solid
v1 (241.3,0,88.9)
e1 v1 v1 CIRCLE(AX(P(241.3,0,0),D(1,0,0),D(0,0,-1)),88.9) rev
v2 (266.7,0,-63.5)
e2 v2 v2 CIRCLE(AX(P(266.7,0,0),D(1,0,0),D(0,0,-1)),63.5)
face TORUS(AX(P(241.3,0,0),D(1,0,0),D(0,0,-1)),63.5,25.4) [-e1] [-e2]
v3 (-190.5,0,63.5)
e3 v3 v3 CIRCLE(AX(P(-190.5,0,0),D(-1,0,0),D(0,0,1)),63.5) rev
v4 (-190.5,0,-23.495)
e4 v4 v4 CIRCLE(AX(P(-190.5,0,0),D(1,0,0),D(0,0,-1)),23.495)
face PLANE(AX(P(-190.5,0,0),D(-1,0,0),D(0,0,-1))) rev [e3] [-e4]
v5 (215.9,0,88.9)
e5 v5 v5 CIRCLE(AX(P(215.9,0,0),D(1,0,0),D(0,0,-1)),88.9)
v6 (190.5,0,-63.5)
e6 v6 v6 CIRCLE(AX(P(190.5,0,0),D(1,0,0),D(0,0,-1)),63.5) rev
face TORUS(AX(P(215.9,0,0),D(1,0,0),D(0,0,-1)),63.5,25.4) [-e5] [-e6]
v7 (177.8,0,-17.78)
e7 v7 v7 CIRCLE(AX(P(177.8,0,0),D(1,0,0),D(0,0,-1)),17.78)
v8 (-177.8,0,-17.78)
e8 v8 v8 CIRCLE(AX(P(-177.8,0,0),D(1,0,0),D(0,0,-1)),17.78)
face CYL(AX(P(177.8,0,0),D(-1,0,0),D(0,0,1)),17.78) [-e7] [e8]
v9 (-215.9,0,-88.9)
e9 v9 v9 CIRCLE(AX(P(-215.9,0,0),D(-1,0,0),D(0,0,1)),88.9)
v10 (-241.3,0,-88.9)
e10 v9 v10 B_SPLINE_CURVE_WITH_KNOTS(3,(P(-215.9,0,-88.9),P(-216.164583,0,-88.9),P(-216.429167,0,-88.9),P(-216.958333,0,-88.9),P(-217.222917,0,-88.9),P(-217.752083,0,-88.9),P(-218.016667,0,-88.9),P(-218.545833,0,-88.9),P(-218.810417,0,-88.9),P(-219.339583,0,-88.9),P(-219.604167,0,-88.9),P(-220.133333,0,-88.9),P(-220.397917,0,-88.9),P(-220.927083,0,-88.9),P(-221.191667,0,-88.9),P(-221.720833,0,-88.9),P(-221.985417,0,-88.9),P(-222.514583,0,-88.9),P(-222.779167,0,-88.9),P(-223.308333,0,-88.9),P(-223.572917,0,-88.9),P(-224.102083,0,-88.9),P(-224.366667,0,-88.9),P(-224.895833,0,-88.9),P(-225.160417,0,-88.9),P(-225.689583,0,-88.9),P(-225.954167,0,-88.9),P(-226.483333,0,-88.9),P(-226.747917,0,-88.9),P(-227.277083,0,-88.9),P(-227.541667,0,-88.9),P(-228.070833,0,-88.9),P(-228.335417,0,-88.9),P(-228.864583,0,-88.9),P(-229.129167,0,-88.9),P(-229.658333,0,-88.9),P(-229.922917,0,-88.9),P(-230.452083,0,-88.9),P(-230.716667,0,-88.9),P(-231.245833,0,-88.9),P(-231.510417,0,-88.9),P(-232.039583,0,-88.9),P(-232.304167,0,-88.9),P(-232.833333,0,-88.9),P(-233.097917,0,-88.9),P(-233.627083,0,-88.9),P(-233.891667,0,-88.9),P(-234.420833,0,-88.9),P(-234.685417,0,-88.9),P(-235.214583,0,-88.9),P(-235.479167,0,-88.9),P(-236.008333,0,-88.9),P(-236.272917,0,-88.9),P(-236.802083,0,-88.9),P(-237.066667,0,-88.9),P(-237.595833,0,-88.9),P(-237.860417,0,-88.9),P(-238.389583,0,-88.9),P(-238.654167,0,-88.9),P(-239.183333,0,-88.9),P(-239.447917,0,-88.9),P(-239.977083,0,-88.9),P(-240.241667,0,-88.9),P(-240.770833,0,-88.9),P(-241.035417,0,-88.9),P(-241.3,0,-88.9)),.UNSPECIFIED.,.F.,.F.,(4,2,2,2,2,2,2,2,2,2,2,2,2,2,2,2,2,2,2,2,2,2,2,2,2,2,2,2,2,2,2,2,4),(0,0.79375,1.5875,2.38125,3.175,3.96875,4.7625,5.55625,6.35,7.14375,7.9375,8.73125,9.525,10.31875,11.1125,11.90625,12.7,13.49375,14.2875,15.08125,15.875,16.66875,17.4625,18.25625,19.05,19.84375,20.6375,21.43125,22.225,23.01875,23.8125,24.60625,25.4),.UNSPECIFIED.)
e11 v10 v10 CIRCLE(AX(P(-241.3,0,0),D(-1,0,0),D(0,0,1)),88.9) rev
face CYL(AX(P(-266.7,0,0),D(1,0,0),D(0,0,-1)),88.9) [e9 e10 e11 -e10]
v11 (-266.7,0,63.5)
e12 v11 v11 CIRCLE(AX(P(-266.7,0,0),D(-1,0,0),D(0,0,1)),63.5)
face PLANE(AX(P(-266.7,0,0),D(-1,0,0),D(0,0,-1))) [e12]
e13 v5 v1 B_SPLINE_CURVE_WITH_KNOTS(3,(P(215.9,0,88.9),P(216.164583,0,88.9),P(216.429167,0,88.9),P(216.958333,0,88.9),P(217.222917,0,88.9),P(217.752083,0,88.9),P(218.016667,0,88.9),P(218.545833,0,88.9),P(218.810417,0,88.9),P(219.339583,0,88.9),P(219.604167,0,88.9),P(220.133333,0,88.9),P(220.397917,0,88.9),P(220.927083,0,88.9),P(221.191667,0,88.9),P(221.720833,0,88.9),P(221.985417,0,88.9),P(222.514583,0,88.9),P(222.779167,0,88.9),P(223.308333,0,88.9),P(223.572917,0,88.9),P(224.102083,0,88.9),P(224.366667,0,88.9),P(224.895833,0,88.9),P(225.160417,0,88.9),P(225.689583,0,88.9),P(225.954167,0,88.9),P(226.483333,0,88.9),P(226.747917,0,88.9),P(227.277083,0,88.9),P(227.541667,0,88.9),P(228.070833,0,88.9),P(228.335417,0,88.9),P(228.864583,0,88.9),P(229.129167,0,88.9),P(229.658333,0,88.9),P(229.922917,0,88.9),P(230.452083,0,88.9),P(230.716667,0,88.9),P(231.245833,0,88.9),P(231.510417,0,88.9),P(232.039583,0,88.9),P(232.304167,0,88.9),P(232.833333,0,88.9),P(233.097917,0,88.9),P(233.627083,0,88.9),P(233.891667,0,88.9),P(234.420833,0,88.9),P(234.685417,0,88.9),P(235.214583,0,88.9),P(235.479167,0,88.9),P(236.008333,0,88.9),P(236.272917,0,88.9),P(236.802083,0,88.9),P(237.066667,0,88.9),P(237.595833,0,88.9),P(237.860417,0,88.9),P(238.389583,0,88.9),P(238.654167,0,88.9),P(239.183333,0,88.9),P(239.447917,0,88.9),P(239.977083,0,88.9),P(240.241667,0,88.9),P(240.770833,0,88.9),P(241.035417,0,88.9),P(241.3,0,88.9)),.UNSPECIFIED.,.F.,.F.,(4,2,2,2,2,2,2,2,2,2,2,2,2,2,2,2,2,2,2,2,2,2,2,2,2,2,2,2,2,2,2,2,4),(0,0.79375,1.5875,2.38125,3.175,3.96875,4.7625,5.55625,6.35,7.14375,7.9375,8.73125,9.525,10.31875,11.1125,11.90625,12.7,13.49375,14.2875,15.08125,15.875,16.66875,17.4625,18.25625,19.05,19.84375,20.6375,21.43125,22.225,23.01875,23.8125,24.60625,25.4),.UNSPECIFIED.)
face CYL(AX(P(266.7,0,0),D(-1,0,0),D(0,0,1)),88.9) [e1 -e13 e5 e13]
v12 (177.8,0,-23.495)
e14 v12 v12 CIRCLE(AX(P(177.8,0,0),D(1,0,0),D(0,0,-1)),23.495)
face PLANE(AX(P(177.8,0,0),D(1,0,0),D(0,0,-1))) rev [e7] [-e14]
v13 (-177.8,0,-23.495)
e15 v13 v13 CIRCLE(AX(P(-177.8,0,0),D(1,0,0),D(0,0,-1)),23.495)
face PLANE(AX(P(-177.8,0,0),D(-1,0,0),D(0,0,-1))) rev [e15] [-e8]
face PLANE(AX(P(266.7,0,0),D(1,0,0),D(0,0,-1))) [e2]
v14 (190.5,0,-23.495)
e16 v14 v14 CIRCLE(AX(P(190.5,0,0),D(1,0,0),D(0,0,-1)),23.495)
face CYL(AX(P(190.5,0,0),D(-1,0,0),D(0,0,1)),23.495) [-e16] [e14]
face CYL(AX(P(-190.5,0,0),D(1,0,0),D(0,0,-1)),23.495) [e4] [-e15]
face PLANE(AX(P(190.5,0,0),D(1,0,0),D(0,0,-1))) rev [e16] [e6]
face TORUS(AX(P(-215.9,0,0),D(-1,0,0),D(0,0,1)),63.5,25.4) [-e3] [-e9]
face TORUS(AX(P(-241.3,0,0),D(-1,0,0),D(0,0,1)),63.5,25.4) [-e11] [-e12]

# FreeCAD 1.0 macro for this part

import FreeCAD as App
import Part
import Sketcher

V = App.Vector
Q = App.Units.Quantity


def edges_at(feature, points):
    """Names of the edges that pass closest to the given points."""
    edges = feature.Shape.Edges
    near = lambda p: min(range(len(edges)), key=lambda i: edges[i].distToShape(Part.Vertex(*p))[0])
    return sorted({f"Edge{near(p) + 1}" for p in points})

doc = App.newDocument("Part")
params = doc.addObject("Spreadsheet::Sheet", "Params")
for row, (alias, value) in enumerate([
    ("sketch1_diameter", "1.4 in"),
    ("pad1_length", "14 in"),
    ("sketch2_diameter", "1.85 in"),
    ("pad2_length", "0.5 in"),
    ("sketch3_diameter", "1.85 in"),
    ("pad3_length", "0.5 in"),
    ("sketch4_diameter", "1.85 in"),
    ("pad4_length", "0.5 in"),
    ("sketch5_diameter", "1.85 in"),
    ("pad5_length", "0.5 in"),
    ("sketch6_diameter", "1.85 in"),
    ("pad6_length", "0.5 in"),
    ("sketch7_diameter", "1.85 in"),
    ("pad7_length", "0.5 in"),
    ("sketch8_diameter", "7 in"),
    ("pad8_length", "3 in"),
    ("fillet_radius", "1 in"),
    ("fillet2_radius", "1 in"),
    ("fillet3_radius", "1 in"),
    ("fillet4_radius", "1 in"),
], start=1):
    params.set(f"A{row}", alias)
    params.set(f"B{row}", "=" + value)
    params.setAlias(f"B{row}", alias)

body = doc.addObject("PartDesign::Body", "Body")

# Sketch on YZ plane
sketch1 = body.newObject("Sketcher::SketchObject", "Sketch")
sketch1.AttachmentSupport = (doc.getObject("YZ_Plane"), [""])
sketch1.MapMode = "FlatFace"
sketch1.addGeometry(Part.Circle(V(0, 0, 0), V(0, 0, 1), 18), False)
sketch1.addConstraint([
    Sketcher.Constraint("Coincident", 0, 3, -1, 1),
    Sketcher.Constraint("Diameter", 0, Q("1.4 in")),
])
sketch1.setExpression("Constraints[1]", "Params.sketch1_diameter")
pad1 = body.newObject("PartDesign::Pad", "Pad")
pad1.Profile = sketch1
pad1.setExpression("Length", "Params.pad1_length")
pad1.Midplane = True

# Sketch on YZ plane
sketch2 = body.newObject("Sketcher::SketchObject", "Sketch001")
sketch2.AttachmentSupport = (doc.getObject("YZ_Plane"), [""])
sketch2.MapMode = "FlatFace"
sketch2.AttachmentOffset = App.Placement(V(0, 0, 7 * 25.4), App.Rotation())
sketch2.addGeometry(Part.Circle(V(0, 0, 0), V(0, 0, 1), 23), False)
sketch2.addConstraint([
    Sketcher.Constraint("Coincident", 0, 3, -1, 1),
    Sketcher.Constraint("Diameter", 0, Q("1.85 in")),
])
sketch2.setExpression("Constraints[1]", "Params.sketch2_diameter")
pad2 = body.newObject("PartDesign::Pad", "Pad001")
pad2.Profile = sketch2
pad2.setExpression("Length", "Params.pad2_length")
doc.recompute()

mirrored = body.newObject("PartDesign::Mirrored", "Mirrored")
mirrored.Originals = [pad2]
mirrored.MirrorPlane = (doc.getObject("YZ_Plane"), [""])
body.Tip = mirrored

# Sketch on YZ plane
sketch3 = body.newObject("Sketcher::SketchObject", "Sketch002")
sketch3.AttachmentSupport = (doc.getObject("YZ_Plane"), [""])
sketch3.MapMode = "FlatFace"
sketch3.AttachmentOffset = App.Placement(V(0, 0, -7 * 25.4), App.Rotation())
sketch3.addGeometry(Part.Circle(V(0, 0, 0), V(0, 0, 1), 23), False)
sketch3.addConstraint([
    Sketcher.Constraint("Coincident", 0, 3, -1, 1),
    Sketcher.Constraint("Diameter", 0, Q("1.85 in")),
])
sketch3.setExpression("Constraints[1]", "Params.sketch3_diameter")
pad3 = body.newObject("PartDesign::Pad", "Pad002")
pad3.Profile = sketch3
pad3.setExpression("Length", "Params.pad3_length")
pad3.Reversed = True

# Sketch on YZ plane
sketch4 = body.newObject("Sketcher::SketchObject", "Sketch003")
sketch4.AttachmentSupport = (doc.getObject("YZ_Plane"), [""])
sketch4.MapMode = "FlatFace"
sketch4.AttachmentOffset = App.Placement(V(0, 0, 7 * 25.4), App.Rotation())
sketch4.addGeometry(Part.Circle(V(0, 0, 0), V(0, 0, 1), 23), False)
sketch4.addConstraint([
    Sketcher.Constraint("Coincident", 0, 3, -1, 1),
    Sketcher.Constraint("Diameter", 0, Q("1.85 in")),
])
sketch4.setExpression("Constraints[1]", "Params.sketch4_diameter")
pad4 = body.newObject("PartDesign::Pad", "Pad003")
pad4.Profile = sketch4
pad4.setExpression("Length", "Params.pad4_length")

# Sketch on YZ plane
sketch5 = body.newObject("Sketcher::SketchObject", "Sketch004")
sketch5.AttachmentSupport = (doc.getObject("YZ_Plane"), [""])
sketch5.MapMode = "FlatFace"
sketch5.AttachmentOffset = App.Placement(V(0, 0, -7 * 25.4), App.Rotation())
sketch5.addGeometry(Part.Circle(V(0, 0, 0), V(0, 0, 1), 23), False)
sketch5.addConstraint([
    Sketcher.Constraint("Coincident", 0, 3, -1, 1),
    Sketcher.Constraint("Diameter", 0, Q("1.85 in")),
])
sketch5.setExpression("Constraints[1]", "Params.sketch5_diameter")
pad5 = body.newObject("PartDesign::Pad", "Pad004")
pad5.Profile = sketch5
pad5.setExpression("Length", "Params.pad5_length")
pad5.Reversed = True

# Sketch on YZ plane
sketch6 = body.newObject("Sketcher::SketchObject", "Sketch005")
sketch6.AttachmentSupport = (doc.getObject("YZ_Plane"), [""])
sketch6.MapMode = "FlatFace"
sketch6.AttachmentOffset = App.Placement(V(0, 0, 7 * 25.4), App.Rotation())
sketch6.addGeometry(Part.Circle(V(0, 0, 0), V(0, 0, 1), 23), False)
sketch6.addConstraint([
    Sketcher.Constraint("Coincident", 0, 3, -1, 1),
    Sketcher.Constraint("Diameter", 0, Q("1.85 in")),
])
sketch6.setExpression("Constraints[1]", "Params.sketch6_diameter")
pad6 = body.newObject("PartDesign::Pad", "Pad005")
pad6.Profile = sketch6
pad6.setExpression("Length", "Params.pad6_length")

# Sketch on YZ plane
sketch7 = body.newObject("Sketcher::SketchObject", "Sketch006")
sketch7.AttachmentSupport = (doc.getObject("YZ_Plane"), [""])
sketch7.MapMode = "FlatFace"
sketch7.AttachmentOffset = App.Placement(V(0, 0, 7 * 25.4), App.Rotation())
sketch7.addGeometry(Part.Circle(V(0, 0, 0), V(0, 0, 1), 23), False)
sketch7.addConstraint([
    Sketcher.Constraint("Coincident", 0, 3, -1, 1),
    Sketcher.Constraint("Diameter", 0, Q("1.85 in")),
])
sketch7.setExpression("Constraints[1]", "Params.sketch7_diameter")
pad7 = body.newObject("PartDesign::Pad", "Pad006")
pad7.Profile = sketch7
pad7.setExpression("Length", "Params.pad7_length")

# Sketch on YZ plane
sketch8 = body.newObject("Sketcher::SketchObject", "Sketch007")
sketch8.AttachmentSupport = (doc.getObject("YZ_Plane"), [""])
sketch8.MapMode = "FlatFace"
sketch8.AttachmentOffset = App.Placement(V(0, 0, 7.5 * 25.4), App.Rotation())
sketch8.addGeometry(Part.Circle(V(0, 0, 0), V(0, 0, 1), 89), False)
sketch8.addConstraint([
    Sketcher.Constraint("Coincident", 0, 3, -1, 1),
    Sketcher.Constraint("Diameter", 0, Q("7 in")),
])
sketch8.setExpression("Constraints[1]", "Params.sketch8_diameter")
pad8 = body.newObject("PartDesign::Pad", "Pad007")
pad8.Profile = sketch8
pad8.setExpression("Length", "Params.pad8_length")
doc.recompute()

fillet = body.newObject("PartDesign::Fillet", "Fillet")
fillet.Base = (pad8, edges_at(pad8, [(266.7, 0, -88.9)]))
fillet.setExpression("Radius", "Params.fillet_radius")
doc.recompute()

fillet2 = body.newObject("PartDesign::Fillet", "Fillet001")
fillet2.Base = (fillet, edges_at(fillet, [(190.5, 0, -88.9)]))
fillet2.setExpression("Radius", "Params.fillet2_radius")
doc.recompute()

mirrored2 = body.newObject("PartDesign::Mirrored", "Mirrored001")
mirrored2.Originals = [pad8]
mirrored2.MirrorPlane = (doc.getObject("YZ_Plane"), [""])
body.Tip = mirrored2
doc.recompute()

fillet3 = body.newObject("PartDesign::Fillet", "Fillet002")
fillet3.Base = (mirrored2, edges_at(mirrored2, [(-266.7, 0, -88.9)]))
fillet3.setExpression("Radius", "Params.fillet3_radius")
doc.recompute()

fillet4 = body.newObject("PartDesign::Fillet", "Fillet003")
fillet4.Base = (fillet3, edges_at(fillet3, [(-190.5, 0, -88.9)]))
fillet4.setExpression("Radius", "Params.fillet4_radius")

doc.recompute()
